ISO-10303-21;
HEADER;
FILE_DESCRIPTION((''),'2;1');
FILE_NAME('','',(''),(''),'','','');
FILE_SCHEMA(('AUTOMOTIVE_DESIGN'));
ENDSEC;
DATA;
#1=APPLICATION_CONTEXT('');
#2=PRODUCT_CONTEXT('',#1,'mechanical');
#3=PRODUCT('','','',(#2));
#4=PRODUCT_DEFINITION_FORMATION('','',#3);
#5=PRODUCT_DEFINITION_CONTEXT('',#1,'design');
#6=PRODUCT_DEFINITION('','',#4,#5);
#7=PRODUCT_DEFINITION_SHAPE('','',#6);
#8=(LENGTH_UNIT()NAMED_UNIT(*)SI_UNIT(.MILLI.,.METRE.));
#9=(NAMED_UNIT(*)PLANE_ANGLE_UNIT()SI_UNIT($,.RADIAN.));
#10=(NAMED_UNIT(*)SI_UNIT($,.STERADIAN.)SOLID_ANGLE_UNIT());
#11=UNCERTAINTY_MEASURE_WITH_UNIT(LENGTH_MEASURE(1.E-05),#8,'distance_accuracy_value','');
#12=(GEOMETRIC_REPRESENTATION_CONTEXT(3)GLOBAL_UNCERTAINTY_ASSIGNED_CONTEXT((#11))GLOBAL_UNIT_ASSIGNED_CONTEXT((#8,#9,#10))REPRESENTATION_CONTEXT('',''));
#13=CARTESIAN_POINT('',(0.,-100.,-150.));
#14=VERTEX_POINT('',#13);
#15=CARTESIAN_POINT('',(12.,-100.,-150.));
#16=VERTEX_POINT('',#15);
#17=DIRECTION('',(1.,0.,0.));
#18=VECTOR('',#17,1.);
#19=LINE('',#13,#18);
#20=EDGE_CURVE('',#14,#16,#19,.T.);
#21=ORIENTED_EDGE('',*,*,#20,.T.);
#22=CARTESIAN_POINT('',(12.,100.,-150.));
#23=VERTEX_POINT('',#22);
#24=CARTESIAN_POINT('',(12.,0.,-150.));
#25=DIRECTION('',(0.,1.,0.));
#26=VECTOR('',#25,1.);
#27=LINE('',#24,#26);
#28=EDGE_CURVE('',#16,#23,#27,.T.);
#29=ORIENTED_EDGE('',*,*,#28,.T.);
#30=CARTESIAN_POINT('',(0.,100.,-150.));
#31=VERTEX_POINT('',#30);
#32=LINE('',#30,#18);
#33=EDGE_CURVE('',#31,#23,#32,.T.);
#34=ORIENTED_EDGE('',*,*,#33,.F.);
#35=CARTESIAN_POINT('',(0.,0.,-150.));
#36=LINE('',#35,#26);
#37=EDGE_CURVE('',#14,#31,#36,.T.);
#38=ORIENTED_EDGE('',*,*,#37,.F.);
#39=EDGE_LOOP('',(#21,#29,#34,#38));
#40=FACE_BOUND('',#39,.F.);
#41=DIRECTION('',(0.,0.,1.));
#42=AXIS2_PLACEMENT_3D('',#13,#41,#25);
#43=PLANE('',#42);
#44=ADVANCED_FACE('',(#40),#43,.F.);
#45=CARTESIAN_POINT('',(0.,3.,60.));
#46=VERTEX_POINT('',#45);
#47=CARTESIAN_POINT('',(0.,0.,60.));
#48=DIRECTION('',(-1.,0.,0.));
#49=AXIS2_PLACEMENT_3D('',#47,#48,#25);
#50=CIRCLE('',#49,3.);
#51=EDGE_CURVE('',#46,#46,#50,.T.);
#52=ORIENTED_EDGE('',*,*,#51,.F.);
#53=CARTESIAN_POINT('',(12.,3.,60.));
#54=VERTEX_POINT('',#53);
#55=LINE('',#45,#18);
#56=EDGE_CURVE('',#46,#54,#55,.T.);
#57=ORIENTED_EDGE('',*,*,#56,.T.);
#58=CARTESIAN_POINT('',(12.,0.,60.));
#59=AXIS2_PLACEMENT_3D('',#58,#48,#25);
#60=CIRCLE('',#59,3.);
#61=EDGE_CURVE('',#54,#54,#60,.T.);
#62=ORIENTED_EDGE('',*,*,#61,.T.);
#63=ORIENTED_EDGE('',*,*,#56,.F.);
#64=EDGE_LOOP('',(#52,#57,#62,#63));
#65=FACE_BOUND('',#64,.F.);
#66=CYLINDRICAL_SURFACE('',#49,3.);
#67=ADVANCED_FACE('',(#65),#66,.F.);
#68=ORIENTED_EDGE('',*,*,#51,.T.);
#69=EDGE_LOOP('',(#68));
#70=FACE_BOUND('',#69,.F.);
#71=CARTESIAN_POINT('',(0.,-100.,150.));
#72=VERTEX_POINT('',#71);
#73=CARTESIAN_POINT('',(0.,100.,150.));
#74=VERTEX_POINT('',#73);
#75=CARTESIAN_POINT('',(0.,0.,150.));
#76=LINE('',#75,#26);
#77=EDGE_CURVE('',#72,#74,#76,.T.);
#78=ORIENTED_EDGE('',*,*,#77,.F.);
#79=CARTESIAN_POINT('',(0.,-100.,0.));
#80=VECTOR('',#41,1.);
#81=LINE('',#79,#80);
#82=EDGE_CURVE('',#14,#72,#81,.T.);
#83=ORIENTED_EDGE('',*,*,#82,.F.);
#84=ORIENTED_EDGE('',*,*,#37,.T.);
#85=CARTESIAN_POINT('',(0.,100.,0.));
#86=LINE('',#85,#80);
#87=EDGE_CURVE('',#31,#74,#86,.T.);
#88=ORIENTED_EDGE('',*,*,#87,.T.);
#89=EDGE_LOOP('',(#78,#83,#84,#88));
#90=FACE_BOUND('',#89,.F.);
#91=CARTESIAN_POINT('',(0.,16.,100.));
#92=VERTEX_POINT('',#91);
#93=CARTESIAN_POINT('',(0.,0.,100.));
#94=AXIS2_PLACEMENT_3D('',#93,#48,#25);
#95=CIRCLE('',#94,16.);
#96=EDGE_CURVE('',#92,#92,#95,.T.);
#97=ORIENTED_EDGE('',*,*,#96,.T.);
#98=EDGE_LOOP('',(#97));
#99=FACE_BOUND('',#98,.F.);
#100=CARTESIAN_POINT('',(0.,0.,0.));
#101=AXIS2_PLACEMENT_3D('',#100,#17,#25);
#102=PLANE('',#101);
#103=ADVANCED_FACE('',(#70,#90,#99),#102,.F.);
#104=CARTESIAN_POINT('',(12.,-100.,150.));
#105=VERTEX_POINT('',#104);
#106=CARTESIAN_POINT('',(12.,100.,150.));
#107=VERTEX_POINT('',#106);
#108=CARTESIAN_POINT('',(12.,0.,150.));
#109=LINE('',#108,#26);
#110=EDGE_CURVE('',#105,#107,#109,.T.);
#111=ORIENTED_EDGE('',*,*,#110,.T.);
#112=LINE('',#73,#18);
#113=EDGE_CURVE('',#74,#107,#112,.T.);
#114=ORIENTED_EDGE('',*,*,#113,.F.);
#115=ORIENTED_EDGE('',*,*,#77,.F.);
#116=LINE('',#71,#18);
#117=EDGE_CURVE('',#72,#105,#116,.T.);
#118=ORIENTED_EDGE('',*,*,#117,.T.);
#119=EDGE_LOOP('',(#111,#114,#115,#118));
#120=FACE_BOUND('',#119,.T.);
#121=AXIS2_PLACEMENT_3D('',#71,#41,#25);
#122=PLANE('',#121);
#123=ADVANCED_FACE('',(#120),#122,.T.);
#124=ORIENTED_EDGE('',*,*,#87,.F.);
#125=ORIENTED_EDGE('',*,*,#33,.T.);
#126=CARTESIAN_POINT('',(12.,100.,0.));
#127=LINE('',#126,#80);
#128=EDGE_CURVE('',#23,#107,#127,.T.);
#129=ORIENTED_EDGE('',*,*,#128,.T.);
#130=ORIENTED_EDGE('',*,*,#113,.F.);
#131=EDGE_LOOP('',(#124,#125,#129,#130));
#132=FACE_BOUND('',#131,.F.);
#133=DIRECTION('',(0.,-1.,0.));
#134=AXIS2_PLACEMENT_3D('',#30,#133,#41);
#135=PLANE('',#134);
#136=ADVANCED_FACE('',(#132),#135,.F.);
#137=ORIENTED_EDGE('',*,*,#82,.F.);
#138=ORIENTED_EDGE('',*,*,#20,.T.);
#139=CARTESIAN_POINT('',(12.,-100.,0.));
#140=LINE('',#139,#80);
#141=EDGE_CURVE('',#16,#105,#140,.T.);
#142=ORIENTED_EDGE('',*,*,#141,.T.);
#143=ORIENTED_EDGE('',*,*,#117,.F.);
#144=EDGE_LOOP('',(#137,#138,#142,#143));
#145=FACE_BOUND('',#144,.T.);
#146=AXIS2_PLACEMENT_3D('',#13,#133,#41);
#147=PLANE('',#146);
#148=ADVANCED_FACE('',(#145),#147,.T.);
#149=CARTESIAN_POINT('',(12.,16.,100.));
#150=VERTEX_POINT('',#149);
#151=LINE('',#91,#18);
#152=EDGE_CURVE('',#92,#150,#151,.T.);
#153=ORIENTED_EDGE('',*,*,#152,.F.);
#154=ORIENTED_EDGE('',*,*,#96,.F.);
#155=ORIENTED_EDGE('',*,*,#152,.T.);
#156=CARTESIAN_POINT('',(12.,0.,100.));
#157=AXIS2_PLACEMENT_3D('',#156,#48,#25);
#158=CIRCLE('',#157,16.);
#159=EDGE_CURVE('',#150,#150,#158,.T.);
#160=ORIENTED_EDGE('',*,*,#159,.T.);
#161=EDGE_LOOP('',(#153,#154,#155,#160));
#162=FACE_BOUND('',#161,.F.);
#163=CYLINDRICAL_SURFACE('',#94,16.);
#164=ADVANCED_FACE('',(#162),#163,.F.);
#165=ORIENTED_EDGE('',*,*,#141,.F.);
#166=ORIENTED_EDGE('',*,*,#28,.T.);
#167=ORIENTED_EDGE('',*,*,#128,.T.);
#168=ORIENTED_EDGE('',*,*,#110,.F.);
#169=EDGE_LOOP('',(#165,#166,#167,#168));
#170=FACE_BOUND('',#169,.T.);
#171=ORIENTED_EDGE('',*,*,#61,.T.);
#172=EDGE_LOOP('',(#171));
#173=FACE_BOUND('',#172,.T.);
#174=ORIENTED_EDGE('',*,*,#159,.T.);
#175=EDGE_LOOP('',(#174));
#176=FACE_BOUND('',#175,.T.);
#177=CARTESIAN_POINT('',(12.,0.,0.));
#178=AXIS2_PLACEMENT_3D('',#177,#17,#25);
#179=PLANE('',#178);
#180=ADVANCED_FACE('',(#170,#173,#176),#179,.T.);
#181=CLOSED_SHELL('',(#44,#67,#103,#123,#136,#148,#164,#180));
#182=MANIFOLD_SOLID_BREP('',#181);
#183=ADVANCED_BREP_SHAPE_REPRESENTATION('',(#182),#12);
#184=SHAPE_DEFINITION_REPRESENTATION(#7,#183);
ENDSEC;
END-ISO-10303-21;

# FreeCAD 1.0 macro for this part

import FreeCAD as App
import Part
import Sketcher

V = App.Vector

doc = App.newDocument("Part")
params = doc.addObject("Spreadsheet::Sheet", "Params")
for row, (alias, value) in enumerate([
    ("sketch1_width", "200 mm"),
    ("sketch1_height", "300 mm"),
    ("pad1_length", "12 mm"),
    ("sketch2_diameter", "32 mm"),
    ("sketch2_diameter2", "6 mm"),
], start=1):
    params.set(f"A{row}", alias)
    params.set(f"B{row}", "=" + value)
    params.setAlias(f"B{row}", alias)

body = doc.addObject("PartDesign::Body", "Body")

# Sketch on YZ plane
sketch1 = doc.addObject("Sketcher::SketchObject", "Sketch")
body.addObject(sketch1)
sketch1.AttachmentSupport = (doc.YZ_Plane, [""])
sketch1.MapMode = "FlatFace"
sketch1.addGeometry(Part.LineSegment(V(-100, 150, 0), V(-100, -150, 0)), False)
sketch1.addGeometry(Part.LineSegment(V(-100, -150, 0), V(100, -150, 0)), False)
sketch1.addGeometry(Part.LineSegment(V(100, -150, 0), V(100, 150, 0)), False)
sketch1.addGeometry(Part.LineSegment(V(100, 150, 0), V(-100, 150, 0)), False)
sketch1.addConstraint(Sketcher.Constraint("Coincident", 0, 2, 1, 1))
sketch1.addConstraint(Sketcher.Constraint("Coincident", 1, 2, 2, 1))
sketch1.addConstraint(Sketcher.Constraint("Coincident", 2, 2, 3, 1))
sketch1.addConstraint(Sketcher.Constraint("Coincident", 3, 2, 0, 1))
sketch1.addConstraint(Sketcher.Constraint("Vertical", 0))
sketch1.addConstraint(Sketcher.Constraint("Horizontal", 1))
sketch1.addConstraint(Sketcher.Constraint("Vertical", 2))
sketch1.addConstraint(Sketcher.Constraint("Horizontal", 3))
sketch1.addConstraint(Sketcher.Constraint("Symmetric", 0, 2, 2, 2, -1, 1))
sketch1.addConstraint(Sketcher.Constraint("DistanceX", 1, 1, 1, 2, 200.0))
sketch1.addConstraint(Sketcher.Constraint("DistanceY", 0, 2, 0, 1, 300.0))
sketch1.setExpression("Constraints[9]", "Params.sketch1_width")
sketch1.setExpression("Constraints[10]", "Params.sketch1_height")
pad1 = doc.addObject("PartDesign::Pad", "Pad")
body.addObject(pad1)
pad1.Profile = sketch1
pad1.setExpression("Length", "Params.pad1_length")

# Sketch on YZ plane
sketch2 = doc.addObject("Sketcher::SketchObject", "Sketch001")
body.addObject(sketch2)
sketch2.AttachmentSupport = (doc.YZ_Plane, [""])
sketch2.MapMode = "FlatFace"
sketch2.addGeometry(Part.Circle(V(0, 100, 0), V(0, 0, 1), 16), False)
sketch2.addGeometry(Part.Circle(V(0, 60, 0), V(0, 0, 1), 3), False)
sketch2.addConstraint(Sketcher.Constraint("PointOnObject", 0, 3, -2))
sketch2.addConstraint(Sketcher.Constraint("PointOnObject", 1, 3, -2))
sketch2.addConstraint(Sketcher.Constraint("Diameter", 0, 32.0))
sketch2.addConstraint(Sketcher.Constraint("Diameter", 1, 6.0))
sketch2.addConstraint(Sketcher.Constraint("DistanceY", -1, 1, 0, 3, 100.0))
sketch2.addConstraint(Sketcher.Constraint("DistanceY", -1, 1, 1, 3, 60.0))
sketch2.setExpression("Constraints[2]", "Params.sketch2_diameter")
sketch2.setExpression("Constraints[3]", "Params.sketch2_diameter2")
pocket1 = doc.addObject("PartDesign::Pocket", "Pocket")
body.addObject(pocket1)
pocket1.Profile = sketch2
pocket1.Type = "ThroughAll"
pocket1.Reversed = True

doc.recompute()
